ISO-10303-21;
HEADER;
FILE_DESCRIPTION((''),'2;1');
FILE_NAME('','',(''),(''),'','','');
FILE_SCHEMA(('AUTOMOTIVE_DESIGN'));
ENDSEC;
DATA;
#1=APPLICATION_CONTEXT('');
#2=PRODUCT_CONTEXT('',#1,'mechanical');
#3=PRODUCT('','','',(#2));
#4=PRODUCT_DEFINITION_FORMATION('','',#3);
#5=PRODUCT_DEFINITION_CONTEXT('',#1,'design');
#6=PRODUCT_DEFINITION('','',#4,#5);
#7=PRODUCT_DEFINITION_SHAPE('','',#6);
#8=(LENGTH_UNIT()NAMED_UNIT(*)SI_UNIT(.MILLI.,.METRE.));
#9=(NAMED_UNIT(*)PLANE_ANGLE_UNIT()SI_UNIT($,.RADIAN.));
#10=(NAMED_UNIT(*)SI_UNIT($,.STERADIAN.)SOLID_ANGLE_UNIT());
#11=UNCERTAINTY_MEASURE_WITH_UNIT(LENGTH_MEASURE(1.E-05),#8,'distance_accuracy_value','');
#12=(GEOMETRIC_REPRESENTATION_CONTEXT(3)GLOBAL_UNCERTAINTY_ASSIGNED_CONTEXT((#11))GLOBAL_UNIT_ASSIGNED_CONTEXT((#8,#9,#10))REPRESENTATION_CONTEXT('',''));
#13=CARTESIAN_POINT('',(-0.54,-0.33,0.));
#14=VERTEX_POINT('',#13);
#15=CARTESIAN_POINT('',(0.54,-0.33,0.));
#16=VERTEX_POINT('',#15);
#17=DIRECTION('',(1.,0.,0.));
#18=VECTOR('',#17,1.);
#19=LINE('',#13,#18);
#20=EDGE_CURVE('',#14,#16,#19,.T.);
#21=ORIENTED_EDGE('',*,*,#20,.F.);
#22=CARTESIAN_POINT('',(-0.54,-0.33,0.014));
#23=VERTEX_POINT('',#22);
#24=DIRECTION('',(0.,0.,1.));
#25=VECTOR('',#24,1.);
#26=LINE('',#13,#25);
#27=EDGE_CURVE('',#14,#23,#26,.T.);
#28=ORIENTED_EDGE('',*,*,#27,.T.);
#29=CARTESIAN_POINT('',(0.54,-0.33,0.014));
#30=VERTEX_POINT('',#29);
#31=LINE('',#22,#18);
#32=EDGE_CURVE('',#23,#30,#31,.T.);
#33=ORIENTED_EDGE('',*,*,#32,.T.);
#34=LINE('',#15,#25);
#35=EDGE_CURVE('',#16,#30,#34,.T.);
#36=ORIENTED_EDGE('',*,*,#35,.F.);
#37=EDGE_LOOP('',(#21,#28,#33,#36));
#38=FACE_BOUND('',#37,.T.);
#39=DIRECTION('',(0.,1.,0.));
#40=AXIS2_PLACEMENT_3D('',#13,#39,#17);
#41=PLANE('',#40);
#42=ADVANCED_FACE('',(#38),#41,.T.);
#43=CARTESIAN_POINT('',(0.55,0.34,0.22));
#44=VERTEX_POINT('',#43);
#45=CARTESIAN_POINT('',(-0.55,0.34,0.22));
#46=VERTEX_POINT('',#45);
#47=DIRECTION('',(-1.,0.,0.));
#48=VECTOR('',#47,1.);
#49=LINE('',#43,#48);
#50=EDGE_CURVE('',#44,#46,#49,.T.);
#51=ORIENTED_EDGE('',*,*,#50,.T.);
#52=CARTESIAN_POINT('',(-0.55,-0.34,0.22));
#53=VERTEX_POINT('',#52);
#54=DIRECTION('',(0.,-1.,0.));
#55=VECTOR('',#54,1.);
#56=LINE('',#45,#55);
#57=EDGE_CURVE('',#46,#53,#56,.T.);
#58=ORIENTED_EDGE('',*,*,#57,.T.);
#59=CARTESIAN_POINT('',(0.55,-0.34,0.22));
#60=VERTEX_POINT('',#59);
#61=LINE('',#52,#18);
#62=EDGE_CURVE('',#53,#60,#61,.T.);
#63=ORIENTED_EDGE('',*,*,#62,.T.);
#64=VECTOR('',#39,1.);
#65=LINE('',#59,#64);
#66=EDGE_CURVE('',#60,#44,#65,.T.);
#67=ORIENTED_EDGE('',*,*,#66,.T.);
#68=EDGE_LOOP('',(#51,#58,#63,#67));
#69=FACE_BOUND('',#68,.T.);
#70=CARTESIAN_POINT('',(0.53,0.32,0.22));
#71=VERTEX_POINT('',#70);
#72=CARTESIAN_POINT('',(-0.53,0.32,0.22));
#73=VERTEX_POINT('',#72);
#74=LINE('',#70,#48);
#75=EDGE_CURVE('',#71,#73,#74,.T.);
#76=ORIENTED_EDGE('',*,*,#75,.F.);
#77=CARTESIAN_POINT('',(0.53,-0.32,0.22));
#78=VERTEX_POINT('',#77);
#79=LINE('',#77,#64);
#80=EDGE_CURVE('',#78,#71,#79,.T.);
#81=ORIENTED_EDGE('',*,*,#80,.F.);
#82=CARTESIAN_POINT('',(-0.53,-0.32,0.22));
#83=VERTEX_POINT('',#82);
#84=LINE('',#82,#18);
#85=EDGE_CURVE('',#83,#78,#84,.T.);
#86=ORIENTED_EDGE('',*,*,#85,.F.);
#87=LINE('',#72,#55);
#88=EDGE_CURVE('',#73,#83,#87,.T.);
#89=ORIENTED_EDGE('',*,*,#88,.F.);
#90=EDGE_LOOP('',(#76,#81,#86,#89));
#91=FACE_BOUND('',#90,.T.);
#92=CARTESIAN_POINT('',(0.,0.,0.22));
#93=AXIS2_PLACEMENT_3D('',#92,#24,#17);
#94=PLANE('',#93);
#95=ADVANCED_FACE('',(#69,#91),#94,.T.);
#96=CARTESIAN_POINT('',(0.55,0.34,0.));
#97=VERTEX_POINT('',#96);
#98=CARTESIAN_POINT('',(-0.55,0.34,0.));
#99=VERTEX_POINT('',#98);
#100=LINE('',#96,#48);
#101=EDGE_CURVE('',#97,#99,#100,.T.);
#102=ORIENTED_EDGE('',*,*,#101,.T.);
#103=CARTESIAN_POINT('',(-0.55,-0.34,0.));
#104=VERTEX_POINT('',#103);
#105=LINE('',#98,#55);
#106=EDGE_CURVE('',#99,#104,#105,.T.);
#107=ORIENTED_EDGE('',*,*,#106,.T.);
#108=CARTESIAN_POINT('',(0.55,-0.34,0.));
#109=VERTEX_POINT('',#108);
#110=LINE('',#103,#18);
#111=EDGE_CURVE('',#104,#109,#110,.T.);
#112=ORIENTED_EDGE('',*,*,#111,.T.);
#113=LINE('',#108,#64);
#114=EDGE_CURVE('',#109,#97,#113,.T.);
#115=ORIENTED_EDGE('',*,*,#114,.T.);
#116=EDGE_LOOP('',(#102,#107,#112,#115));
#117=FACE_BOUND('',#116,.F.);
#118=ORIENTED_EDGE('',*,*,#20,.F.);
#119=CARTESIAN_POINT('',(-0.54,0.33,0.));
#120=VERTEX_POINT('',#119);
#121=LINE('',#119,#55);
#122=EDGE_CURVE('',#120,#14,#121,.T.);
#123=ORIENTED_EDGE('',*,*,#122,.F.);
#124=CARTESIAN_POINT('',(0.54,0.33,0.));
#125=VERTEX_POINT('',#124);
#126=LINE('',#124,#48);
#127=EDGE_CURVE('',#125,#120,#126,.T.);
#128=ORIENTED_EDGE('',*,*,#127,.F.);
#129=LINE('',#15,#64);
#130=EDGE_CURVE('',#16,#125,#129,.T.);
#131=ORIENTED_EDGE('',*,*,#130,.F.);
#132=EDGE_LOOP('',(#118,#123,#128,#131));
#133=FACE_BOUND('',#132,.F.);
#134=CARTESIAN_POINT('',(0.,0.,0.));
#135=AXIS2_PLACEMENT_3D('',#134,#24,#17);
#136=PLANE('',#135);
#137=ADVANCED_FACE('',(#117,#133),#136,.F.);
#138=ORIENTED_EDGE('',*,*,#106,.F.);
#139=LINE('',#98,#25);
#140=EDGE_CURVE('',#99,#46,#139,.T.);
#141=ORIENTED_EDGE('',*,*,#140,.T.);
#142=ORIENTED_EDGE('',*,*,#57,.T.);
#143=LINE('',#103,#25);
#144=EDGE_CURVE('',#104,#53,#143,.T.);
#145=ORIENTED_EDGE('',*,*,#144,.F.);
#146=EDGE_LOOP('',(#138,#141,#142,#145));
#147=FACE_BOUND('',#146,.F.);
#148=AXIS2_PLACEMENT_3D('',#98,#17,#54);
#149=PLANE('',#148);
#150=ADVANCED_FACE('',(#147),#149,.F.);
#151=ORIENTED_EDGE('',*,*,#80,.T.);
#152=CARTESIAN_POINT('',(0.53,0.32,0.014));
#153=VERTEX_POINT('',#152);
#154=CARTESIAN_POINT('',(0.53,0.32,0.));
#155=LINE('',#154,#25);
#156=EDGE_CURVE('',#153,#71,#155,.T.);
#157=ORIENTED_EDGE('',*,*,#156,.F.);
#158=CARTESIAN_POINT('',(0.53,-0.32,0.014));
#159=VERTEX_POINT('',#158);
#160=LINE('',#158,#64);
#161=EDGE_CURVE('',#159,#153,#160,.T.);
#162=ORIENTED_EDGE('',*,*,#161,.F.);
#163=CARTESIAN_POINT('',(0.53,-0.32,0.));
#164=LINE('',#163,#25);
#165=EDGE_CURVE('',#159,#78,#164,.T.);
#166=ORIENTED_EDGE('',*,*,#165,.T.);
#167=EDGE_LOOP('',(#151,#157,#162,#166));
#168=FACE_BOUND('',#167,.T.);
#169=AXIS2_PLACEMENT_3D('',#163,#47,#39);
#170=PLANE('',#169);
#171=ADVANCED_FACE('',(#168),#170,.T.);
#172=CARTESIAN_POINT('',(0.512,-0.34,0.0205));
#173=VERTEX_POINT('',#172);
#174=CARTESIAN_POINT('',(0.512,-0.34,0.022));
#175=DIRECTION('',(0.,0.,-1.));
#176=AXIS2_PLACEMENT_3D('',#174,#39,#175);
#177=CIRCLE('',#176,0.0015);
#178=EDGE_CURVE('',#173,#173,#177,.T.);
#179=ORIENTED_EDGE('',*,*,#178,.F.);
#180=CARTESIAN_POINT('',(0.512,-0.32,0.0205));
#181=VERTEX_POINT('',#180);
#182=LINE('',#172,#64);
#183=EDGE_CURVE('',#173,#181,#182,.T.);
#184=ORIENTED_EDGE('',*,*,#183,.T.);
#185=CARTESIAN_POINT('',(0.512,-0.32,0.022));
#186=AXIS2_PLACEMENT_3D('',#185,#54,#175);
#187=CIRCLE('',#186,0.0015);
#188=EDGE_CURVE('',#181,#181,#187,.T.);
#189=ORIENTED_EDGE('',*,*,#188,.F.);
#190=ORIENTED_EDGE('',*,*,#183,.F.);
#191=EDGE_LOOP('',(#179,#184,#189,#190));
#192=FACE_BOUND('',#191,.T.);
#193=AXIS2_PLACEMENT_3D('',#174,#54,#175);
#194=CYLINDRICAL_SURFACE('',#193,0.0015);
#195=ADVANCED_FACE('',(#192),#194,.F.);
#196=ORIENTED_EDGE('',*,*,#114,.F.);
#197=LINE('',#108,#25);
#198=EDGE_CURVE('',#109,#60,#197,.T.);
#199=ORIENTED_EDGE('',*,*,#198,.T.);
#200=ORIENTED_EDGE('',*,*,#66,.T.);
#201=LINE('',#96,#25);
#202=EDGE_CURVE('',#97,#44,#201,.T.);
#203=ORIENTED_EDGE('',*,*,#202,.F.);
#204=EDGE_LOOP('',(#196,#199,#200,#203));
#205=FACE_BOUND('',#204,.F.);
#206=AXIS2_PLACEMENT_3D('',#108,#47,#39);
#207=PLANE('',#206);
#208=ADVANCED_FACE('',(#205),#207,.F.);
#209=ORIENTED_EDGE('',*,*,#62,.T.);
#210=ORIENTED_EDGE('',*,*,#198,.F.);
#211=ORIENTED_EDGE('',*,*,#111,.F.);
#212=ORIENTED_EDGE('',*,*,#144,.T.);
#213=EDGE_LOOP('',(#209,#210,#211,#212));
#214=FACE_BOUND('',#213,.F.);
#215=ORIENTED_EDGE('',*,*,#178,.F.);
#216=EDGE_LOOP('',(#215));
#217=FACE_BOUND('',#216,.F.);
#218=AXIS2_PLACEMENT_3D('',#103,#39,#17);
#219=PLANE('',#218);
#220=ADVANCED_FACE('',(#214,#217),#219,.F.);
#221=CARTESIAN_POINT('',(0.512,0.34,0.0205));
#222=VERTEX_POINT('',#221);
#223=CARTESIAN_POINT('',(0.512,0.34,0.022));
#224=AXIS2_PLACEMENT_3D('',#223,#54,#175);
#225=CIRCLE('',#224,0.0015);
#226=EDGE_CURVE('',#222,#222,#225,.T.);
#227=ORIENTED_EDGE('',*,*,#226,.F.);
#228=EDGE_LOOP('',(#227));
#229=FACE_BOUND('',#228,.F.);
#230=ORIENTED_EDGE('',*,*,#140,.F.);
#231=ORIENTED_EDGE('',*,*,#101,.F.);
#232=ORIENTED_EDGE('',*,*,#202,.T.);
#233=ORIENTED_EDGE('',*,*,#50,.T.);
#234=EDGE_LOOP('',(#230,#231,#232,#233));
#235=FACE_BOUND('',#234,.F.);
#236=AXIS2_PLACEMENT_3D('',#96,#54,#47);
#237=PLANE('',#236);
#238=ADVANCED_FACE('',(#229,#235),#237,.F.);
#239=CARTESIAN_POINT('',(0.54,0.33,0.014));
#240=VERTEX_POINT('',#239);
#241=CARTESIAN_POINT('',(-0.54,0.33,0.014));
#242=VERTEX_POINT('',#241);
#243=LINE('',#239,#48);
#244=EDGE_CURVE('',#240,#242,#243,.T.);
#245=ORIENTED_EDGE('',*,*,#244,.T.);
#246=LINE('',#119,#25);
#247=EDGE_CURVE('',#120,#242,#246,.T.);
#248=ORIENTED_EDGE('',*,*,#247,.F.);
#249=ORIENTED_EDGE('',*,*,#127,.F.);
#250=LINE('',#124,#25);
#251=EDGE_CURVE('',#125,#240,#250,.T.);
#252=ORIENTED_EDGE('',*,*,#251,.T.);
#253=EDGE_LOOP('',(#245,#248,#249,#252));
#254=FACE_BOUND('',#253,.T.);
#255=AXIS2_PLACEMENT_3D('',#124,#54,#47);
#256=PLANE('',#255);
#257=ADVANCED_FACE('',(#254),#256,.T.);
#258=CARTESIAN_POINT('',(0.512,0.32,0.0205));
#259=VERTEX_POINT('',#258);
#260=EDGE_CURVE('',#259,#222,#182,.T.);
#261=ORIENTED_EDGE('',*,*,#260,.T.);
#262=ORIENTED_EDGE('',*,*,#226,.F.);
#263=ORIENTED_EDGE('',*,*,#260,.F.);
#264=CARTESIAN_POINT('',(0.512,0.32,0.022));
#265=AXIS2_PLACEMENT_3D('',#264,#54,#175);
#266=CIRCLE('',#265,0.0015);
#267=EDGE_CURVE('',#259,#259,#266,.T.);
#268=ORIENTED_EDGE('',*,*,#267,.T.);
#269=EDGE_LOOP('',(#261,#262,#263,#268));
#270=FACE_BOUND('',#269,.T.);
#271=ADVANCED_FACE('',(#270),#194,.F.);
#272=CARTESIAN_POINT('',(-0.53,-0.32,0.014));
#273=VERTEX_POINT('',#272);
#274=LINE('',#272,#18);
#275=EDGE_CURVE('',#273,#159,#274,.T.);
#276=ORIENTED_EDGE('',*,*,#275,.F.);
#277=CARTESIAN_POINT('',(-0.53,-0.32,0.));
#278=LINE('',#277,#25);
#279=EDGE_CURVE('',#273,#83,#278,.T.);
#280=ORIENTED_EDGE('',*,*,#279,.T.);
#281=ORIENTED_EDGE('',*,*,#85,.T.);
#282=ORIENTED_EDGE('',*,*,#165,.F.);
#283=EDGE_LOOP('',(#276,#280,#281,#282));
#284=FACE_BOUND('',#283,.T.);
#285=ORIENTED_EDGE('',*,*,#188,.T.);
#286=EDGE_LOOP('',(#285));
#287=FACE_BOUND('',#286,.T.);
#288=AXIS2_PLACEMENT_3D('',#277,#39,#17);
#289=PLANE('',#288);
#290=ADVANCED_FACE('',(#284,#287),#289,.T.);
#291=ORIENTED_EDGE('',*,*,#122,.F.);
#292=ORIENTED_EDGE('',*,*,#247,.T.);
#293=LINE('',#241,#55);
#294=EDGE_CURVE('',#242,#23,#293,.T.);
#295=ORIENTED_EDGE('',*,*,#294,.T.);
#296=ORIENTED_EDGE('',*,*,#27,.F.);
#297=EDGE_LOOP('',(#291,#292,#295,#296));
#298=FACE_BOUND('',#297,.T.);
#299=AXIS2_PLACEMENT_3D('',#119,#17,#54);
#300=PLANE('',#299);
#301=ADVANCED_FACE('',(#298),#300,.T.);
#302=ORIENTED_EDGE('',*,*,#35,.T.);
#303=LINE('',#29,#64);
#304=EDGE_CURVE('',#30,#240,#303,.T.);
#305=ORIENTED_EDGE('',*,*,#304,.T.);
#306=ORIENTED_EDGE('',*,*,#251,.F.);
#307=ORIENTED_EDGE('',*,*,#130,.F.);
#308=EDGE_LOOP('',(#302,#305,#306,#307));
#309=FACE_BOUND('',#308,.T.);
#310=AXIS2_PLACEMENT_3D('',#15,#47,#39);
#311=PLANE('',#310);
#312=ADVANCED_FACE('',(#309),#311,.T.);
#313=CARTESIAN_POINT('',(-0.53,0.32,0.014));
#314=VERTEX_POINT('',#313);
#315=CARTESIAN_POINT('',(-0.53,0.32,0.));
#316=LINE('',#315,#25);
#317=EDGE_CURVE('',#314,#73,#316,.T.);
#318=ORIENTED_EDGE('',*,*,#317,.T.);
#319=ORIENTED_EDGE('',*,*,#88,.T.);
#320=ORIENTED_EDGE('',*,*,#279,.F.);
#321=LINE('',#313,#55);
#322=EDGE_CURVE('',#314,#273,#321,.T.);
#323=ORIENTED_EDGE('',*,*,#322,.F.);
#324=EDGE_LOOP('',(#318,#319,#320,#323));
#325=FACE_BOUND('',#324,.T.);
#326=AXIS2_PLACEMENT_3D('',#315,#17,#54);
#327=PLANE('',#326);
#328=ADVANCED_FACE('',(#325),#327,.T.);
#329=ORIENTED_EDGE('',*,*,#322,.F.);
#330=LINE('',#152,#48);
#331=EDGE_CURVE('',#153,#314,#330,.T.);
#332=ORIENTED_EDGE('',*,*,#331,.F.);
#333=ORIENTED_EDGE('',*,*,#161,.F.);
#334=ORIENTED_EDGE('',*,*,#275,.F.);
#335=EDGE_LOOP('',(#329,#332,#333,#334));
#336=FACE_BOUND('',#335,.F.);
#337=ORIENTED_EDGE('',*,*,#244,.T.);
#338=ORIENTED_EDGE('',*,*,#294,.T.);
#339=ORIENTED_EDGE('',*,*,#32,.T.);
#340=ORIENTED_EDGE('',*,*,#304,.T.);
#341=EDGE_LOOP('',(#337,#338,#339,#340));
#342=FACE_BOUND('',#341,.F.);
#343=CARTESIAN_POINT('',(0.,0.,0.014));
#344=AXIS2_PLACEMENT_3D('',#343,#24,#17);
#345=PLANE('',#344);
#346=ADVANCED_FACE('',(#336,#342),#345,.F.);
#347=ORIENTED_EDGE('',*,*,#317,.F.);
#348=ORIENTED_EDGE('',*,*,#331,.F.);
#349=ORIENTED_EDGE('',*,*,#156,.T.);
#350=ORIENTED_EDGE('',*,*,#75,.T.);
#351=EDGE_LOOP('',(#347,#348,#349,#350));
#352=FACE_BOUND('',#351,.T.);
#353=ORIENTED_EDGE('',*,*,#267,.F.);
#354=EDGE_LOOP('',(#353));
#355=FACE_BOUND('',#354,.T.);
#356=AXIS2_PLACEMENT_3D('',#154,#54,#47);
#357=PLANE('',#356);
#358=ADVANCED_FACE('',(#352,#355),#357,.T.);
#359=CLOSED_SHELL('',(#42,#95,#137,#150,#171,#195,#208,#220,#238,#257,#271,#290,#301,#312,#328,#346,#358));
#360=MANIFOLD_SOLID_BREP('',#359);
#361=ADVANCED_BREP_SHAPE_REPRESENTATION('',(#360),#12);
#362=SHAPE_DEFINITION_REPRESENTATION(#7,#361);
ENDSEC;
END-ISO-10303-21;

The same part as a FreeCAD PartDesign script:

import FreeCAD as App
import Part
import Sketcher

V = App.Vector


def add_polygon(sketch, points):
    """Adds a closed chain of lines whose ends are joined by coincident constraints."""
    first, n = sketch.GeometryCount, len(points)
    for a, b in zip(points, points[1:] + points[:1]):
        sketch.addGeometry(Part.LineSegment(App.Vector(*a, 0), App.Vector(*b, 0)), False)
    for i in range(n):
        sketch.addConstraint(Sketcher.Constraint("Coincident", first + i, 2, first + (i + 1) % n, 1))

doc = App.newDocument("Part")
body = doc.addObject("PartDesign::Body", "Body")

# Sketch on XY plane
sketch1 = body.newObject("Sketcher::SketchObject", "Sketch")
sketch1.AttachmentSupport = (doc.getObject("XY_Plane"), [""])
sketch1.MapMode = "FlatFace"
add_polygon(sketch1, [(-0.6, 0.3), (-0.6, -0.3), (0.6, -0.3), (0.6, 0.3)])  # lines 0-3
add_polygon(sketch1, [(-0.5, -0.3), (-0.5, 0.3), (0.5, 0.3), (0.5, -0.3)])  # lines 4-7
sketch1.addConstraint([
    Sketcher.Constraint("Vertical", 0),
    Sketcher.Constraint("Horizontal", 1),
    Sketcher.Constraint("Vertical", 2),
    Sketcher.Constraint("Horizontal", 3),
    Sketcher.Constraint("Vertical", 4),
    Sketcher.Constraint("Horizontal", 5),
    Sketcher.Constraint("Vertical", 6),
    Sketcher.Constraint("Horizontal", 7),
    Sketcher.Constraint("Symmetric", 0, 2, 2, 2, -1, 1),
    Sketcher.Constraint("Symmetric", 4, 2, 6, 2, -1, 1),
    Sketcher.Constraint("DistanceX", 0, 2, -1, 1, 0.55),
    Sketcher.Constraint("DistanceX", 5, 1, 5, 2, 1.06),
    Sketcher.Constraint("DistanceY", 0, 2, 0, 1, 0.68),
    Sketcher.Constraint("DistanceY", 4, 1, 4, 2, 0.64),
])
pad1 = body.newObject("PartDesign::Pad", "Pad")
pad1.Profile = sketch1
pad1.Length = 0.22

# Sketch on XY plane
sketch2 = body.newObject("Sketcher::SketchObject", "Sketch001")
sketch2.AttachmentSupport = (doc.getObject("XY_Plane"), [""])
sketch2.MapMode = "FlatFace"
add_polygon(sketch2, [(-0.5, -0.3), (-0.5, 0.3), (0.5, 0.3), (0.5, -0.3)])  # lines 0-3
add_polygon(sketch2, [(-0.5, 0.3), (-0.5, -0.3), (0.5, -0.3), (0.5, 0.3)])  # lines 4-7
sketch2.addConstraint([
    Sketcher.Constraint("Vertical", 0),
    Sketcher.Constraint("Horizontal", 1),
    Sketcher.Constraint("Vertical", 2),
    Sketcher.Constraint("Horizontal", 3),
    Sketcher.Constraint("Vertical", 4),
    Sketcher.Constraint("Horizontal", 5),
    Sketcher.Constraint("Vertical", 6),
    Sketcher.Constraint("Horizontal", 7),
    Sketcher.Constraint("Symmetric", 0, 2, 2, 2, -1, 1),
    Sketcher.Constraint("Symmetric", 4, 2, 6, 2, -1, 1),
    Sketcher.Constraint("DistanceX", 1, 1, 1, 2, 1.08),
    Sketcher.Constraint("DistanceX", 5, 1, 5, 2, 1.06),
    Sketcher.Constraint("DistanceY", 0, 1, 0, 2, 0.66),
    Sketcher.Constraint("DistanceY", 4, 2, 4, 1, 0.64),
])
pocket1 = body.newObject("PartDesign::Pocket", "Pocket")
pocket1.Profile = sketch2
pocket1.Length = 0.014
pocket1.Reversed = True

# Sketch on XZ plane
sketch3 = body.newObject("Sketcher::SketchObject", "Sketch002")
sketch3.AttachmentSupport = (doc.getObject("XZ_Plane"), [""])
sketch3.MapMode = "FlatFace"
sketch3.AttachmentOffset = App.Placement(V(0, 0, 0.34), App.Rotation())
sketch3.addGeometry(Part.Circle(V(0.512, 0.022, 0), V(0, 0, 1), 0.0015), False)
sketch3.addConstraint([
    Sketcher.Constraint("Diameter", 0, 0.003),
    Sketcher.Constraint("DistanceX", -1, 1, 0, 3, 0.512),
    Sketcher.Constraint("DistanceY", -1, 1, 0, 3, 0.022),
])
doc.recompute()
hole = body.newObject("PartDesign::Hole", "Hole")
hole.Profile = sketch3
hole.ThreadType = "None"
hole.Diameter = 0.003
hole.DepthType = "ThroughAll"

doc.recompute()
